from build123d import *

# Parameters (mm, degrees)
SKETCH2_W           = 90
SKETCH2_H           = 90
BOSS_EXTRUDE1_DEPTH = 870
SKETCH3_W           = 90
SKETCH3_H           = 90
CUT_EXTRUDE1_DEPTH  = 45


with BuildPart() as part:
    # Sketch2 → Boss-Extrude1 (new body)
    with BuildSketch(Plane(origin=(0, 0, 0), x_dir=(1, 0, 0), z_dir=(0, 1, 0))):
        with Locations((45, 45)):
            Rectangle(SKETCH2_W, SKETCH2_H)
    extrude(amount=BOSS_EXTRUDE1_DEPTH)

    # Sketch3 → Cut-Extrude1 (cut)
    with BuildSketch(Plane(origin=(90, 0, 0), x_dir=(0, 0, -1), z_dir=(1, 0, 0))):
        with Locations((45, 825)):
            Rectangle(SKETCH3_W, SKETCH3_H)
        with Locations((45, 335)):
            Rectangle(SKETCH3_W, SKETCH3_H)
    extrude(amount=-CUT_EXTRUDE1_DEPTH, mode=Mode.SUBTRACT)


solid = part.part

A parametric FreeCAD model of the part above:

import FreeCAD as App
import Part
import Sketcher

doc = App.newDocument("Part")
body = doc.addObject("PartDesign::Body", "Body")

# Sketch on XZ plane
sketch1 = body.newObject("Sketcher::SketchObject", "Sketch")
sketch1.AttachmentSupport = (doc.getObject("XZ_Plane"), [""])
sketch1.MapMode = "FlatFace"
sketch1.addGeometry([
    Part.LineSegment(App.Vector(0, -90, 0), App.Vector(0, 0, 0)),
    Part.LineSegment(App.Vector(0, 0, 0), App.Vector(90, 0, 0)),
    Part.LineSegment(App.Vector(90, 0, 0), App.Vector(90, -90, 0)),
    Part.LineSegment(App.Vector(90, -90, 0), App.Vector(0, -90, 0)),
], False)
sketch1.addConstraint([
    Sketcher.Constraint("Coincident", 0, 2, 1, 1),
    Sketcher.Constraint("Coincident", 1, 2, 2, 1),
    Sketcher.Constraint("Coincident", 2, 2, 3, 1),
    Sketcher.Constraint("Coincident", 3, 2, 0, 1),
    Sketcher.Constraint("Vertical", 0),
    Sketcher.Constraint("Horizontal", 1),
    Sketcher.Constraint("Vertical", 2),
    Sketcher.Constraint("Horizontal", 3),
    Sketcher.Constraint("Coincident", 0, 2, -1, 1),
    Sketcher.Constraint("Equal", 3, 0),
    Sketcher.Constraint("DistanceX", 1, 1, 1, 2, 90.0),
])
pad1 = body.newObject("PartDesign::Pad", "Pad")
pad1.Profile = sketch1
pad1.Length = 870
pad1.Reversed = True

# Sketch on YZ plane
sketch2 = body.newObject("Sketcher::SketchObject", "Sketch001")
sketch2.AttachmentSupport = (doc.getObject("YZ_Plane"), [""])
sketch2.MapMode = "FlatFace"
sketch2.AttachmentOffset = App.Placement(App.Vector(0, 0, 90), App.Rotation())
sketch2.addGeometry([
    Part.LineSegment(App.Vector(870, 0, 0), App.Vector(780, 0, 0)),  # 0
    Part.LineSegment(App.Vector(780, 0, 0), App.Vector(780, -90, 0)),  # 1
    Part.LineSegment(App.Vector(780, -90, 0), App.Vector(870, -90, 0)),  # 2
    Part.LineSegment(App.Vector(870, -90, 0), App.Vector(870, 0, 0)),  # 3
    Part.LineSegment(App.Vector(380, 0, 0), App.Vector(290, 0, 0)),  # 4
    Part.LineSegment(App.Vector(290, 0, 0), App.Vector(290, -90, 0)),  # 5
    Part.LineSegment(App.Vector(290, -90, 0), App.Vector(380, -90, 0)),  # 6
    Part.LineSegment(App.Vector(380, -90, 0), App.Vector(380, 0, 0)),  # 7
], False)
sketch2.addConstraint([
    Sketcher.Constraint("Coincident", 0, 2, 1, 1),
    Sketcher.Constraint("Coincident", 1, 2, 2, 1),
    Sketcher.Constraint("Coincident", 2, 2, 3, 1),
    Sketcher.Constraint("Coincident", 3, 2, 0, 1),
    Sketcher.Constraint("Coincident", 4, 2, 5, 1),
    Sketcher.Constraint("Coincident", 5, 2, 6, 1),
    Sketcher.Constraint("Coincident", 6, 2, 7, 1),
    Sketcher.Constraint("Coincident", 7, 2, 4, 1),
    Sketcher.Constraint("Horizontal", 0),
    Sketcher.Constraint("Vertical", 1),
    Sketcher.Constraint("Horizontal", 2),
    Sketcher.Constraint("Vertical", 3),
    Sketcher.Constraint("Horizontal", 4),
    Sketcher.Constraint("Vertical", 5),
    Sketcher.Constraint("Horizontal", 6),
    Sketcher.Constraint("Vertical", 7),
    Sketcher.Constraint("PointOnObject", 0, 2, -1),
    Sketcher.Constraint("PointOnObject", 4, 2, -1),
    Sketcher.Constraint("Horizontal", 2, 2, 5, 2),
    Sketcher.Constraint("Equal", 2, 4),
    Sketcher.Constraint("Equal", 6, 1),
    Sketcher.Constraint("DistanceX", 0, 2, 0, 1, 90.0),
    Sketcher.Constraint("DistanceX", -1, 1, 0, 2, 780.0),
    Sketcher.Constraint("DistanceX", -1, 1, 4, 2, 290.0),
])
pocket1 = body.newObject("PartDesign::Pocket", "Pocket")
pocket1.Profile = sketch2
pocket1.Length = 45

doc.recompute()
